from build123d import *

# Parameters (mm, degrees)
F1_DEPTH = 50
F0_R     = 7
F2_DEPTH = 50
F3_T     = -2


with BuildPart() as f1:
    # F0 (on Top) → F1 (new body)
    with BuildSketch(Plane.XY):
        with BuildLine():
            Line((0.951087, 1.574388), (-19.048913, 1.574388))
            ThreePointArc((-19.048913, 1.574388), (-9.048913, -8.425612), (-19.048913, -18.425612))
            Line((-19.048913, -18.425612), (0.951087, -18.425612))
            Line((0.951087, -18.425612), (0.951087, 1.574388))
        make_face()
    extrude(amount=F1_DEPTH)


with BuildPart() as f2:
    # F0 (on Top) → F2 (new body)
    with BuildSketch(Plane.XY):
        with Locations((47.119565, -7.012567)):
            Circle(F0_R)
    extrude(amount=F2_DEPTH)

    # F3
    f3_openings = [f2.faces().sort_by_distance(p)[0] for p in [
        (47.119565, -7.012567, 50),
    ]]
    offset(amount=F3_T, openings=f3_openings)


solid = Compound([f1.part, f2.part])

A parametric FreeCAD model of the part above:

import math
import FreeCAD as App
import Part
import Sketcher
Q = App.Units.Quantity


def faces_at(feature, points):
    """Names of the faces that lie closest to the given points."""
    faces = feature.Shape.Faces
    near = lambda p: min(range(len(faces)), key=lambda i: faces[i].distToShape(Part.Vertex(*p))[0])
    return sorted({f"Face{near(p) + 1}" for p in points})

doc = App.newDocument("Part")
body = doc.addObject("PartDesign::Body", "Body")

# Sketch on XY plane
sketch1 = body.newObject("Sketcher::SketchObject", "Sketch")
sketch1.AttachmentSupport = (doc.getObject("XY_Plane"), [""])
sketch1.MapMode = "FlatFace"
sketch1.addGeometry([
    Part.LineSegment(App.Vector(0.951087, 1.574388, 0), App.Vector(-19.048913, 1.574388, 0)),
    Part.ArcOfCircle(Part.Circle(App.Vector(-19.048913, -8.425612, 0), App.Vector(0, 0, 1), 10), math.radians(-90), math.radians(90)),
    Part.LineSegment(App.Vector(-19.048913, -18.425612, 0), App.Vector(0.951087, -18.425612, 0)),
    Part.LineSegment(App.Vector(0.951087, -18.425612, 0), App.Vector(0.951087, 1.574388, 0)),
], False)
sketch1.addConstraint([
    Sketcher.Constraint("Tangent", 0, 2, 1, 2),
    Sketcher.Constraint("Tangent", 1, 1, 2, 1),
    Sketcher.Constraint("Coincident", 2, 2, 3, 1),
    Sketcher.Constraint("Coincident", 3, 2, 0, 1),
    Sketcher.Constraint("Horizontal", 0),
    Sketcher.Constraint("Horizontal", 2),
    Sketcher.Constraint("Vertical", 3),
    Sketcher.Constraint("Equal", 2, 3),
    Sketcher.Constraint("Radius", 1, Q("10 mm")),
    Sketcher.Constraint("DistanceY", 1, 3, -1, 1, Q("8.425612 mm")),
    Sketcher.Constraint("DistanceX", 1, 3, -1, 1, Q("19.048913 mm")),
])
pad1 = body.newObject("PartDesign::Pad", "Pad")
pad1.Profile = sketch1
pad1.Length = 50
body2 = doc.addObject("PartDesign::Body", "Body001")

# Sketch on XY plane
sketch2 = body2.newObject("Sketcher::SketchObject", "Sketch001")
sketch2.AttachmentSupport = (doc.getObject("XY_Plane001"), [""])
sketch2.MapMode = "FlatFace"
sketch2.addGeometry(Part.Circle(App.Vector(47.119565, -7.012567, 0), App.Vector(0, 0, 1), 7), False)
sketch2.addConstraint([
    Sketcher.Constraint("Diameter", 0, Q("14 mm")),
    Sketcher.Constraint("DistanceX", -1, 1, 0, 3, Q("47.119565 mm")),
    Sketcher.Constraint("DistanceY", 0, 3, -1, 1, Q("7.012567 mm")),
])
pad2 = body2.newObject("PartDesign::Pad", "Pad001")
pad2.Profile = sketch2
pad2.Length = 50
doc.recompute()

thickness = body2.newObject("PartDesign::Thickness", "Thickness")
thickness.Base = (pad2, faces_at(pad2, [(47.12, -7.013, 50)]))
thickness.Value = 2
thickness.Reversed = True
thickness.Join = "Arc"

doc.recompute()
